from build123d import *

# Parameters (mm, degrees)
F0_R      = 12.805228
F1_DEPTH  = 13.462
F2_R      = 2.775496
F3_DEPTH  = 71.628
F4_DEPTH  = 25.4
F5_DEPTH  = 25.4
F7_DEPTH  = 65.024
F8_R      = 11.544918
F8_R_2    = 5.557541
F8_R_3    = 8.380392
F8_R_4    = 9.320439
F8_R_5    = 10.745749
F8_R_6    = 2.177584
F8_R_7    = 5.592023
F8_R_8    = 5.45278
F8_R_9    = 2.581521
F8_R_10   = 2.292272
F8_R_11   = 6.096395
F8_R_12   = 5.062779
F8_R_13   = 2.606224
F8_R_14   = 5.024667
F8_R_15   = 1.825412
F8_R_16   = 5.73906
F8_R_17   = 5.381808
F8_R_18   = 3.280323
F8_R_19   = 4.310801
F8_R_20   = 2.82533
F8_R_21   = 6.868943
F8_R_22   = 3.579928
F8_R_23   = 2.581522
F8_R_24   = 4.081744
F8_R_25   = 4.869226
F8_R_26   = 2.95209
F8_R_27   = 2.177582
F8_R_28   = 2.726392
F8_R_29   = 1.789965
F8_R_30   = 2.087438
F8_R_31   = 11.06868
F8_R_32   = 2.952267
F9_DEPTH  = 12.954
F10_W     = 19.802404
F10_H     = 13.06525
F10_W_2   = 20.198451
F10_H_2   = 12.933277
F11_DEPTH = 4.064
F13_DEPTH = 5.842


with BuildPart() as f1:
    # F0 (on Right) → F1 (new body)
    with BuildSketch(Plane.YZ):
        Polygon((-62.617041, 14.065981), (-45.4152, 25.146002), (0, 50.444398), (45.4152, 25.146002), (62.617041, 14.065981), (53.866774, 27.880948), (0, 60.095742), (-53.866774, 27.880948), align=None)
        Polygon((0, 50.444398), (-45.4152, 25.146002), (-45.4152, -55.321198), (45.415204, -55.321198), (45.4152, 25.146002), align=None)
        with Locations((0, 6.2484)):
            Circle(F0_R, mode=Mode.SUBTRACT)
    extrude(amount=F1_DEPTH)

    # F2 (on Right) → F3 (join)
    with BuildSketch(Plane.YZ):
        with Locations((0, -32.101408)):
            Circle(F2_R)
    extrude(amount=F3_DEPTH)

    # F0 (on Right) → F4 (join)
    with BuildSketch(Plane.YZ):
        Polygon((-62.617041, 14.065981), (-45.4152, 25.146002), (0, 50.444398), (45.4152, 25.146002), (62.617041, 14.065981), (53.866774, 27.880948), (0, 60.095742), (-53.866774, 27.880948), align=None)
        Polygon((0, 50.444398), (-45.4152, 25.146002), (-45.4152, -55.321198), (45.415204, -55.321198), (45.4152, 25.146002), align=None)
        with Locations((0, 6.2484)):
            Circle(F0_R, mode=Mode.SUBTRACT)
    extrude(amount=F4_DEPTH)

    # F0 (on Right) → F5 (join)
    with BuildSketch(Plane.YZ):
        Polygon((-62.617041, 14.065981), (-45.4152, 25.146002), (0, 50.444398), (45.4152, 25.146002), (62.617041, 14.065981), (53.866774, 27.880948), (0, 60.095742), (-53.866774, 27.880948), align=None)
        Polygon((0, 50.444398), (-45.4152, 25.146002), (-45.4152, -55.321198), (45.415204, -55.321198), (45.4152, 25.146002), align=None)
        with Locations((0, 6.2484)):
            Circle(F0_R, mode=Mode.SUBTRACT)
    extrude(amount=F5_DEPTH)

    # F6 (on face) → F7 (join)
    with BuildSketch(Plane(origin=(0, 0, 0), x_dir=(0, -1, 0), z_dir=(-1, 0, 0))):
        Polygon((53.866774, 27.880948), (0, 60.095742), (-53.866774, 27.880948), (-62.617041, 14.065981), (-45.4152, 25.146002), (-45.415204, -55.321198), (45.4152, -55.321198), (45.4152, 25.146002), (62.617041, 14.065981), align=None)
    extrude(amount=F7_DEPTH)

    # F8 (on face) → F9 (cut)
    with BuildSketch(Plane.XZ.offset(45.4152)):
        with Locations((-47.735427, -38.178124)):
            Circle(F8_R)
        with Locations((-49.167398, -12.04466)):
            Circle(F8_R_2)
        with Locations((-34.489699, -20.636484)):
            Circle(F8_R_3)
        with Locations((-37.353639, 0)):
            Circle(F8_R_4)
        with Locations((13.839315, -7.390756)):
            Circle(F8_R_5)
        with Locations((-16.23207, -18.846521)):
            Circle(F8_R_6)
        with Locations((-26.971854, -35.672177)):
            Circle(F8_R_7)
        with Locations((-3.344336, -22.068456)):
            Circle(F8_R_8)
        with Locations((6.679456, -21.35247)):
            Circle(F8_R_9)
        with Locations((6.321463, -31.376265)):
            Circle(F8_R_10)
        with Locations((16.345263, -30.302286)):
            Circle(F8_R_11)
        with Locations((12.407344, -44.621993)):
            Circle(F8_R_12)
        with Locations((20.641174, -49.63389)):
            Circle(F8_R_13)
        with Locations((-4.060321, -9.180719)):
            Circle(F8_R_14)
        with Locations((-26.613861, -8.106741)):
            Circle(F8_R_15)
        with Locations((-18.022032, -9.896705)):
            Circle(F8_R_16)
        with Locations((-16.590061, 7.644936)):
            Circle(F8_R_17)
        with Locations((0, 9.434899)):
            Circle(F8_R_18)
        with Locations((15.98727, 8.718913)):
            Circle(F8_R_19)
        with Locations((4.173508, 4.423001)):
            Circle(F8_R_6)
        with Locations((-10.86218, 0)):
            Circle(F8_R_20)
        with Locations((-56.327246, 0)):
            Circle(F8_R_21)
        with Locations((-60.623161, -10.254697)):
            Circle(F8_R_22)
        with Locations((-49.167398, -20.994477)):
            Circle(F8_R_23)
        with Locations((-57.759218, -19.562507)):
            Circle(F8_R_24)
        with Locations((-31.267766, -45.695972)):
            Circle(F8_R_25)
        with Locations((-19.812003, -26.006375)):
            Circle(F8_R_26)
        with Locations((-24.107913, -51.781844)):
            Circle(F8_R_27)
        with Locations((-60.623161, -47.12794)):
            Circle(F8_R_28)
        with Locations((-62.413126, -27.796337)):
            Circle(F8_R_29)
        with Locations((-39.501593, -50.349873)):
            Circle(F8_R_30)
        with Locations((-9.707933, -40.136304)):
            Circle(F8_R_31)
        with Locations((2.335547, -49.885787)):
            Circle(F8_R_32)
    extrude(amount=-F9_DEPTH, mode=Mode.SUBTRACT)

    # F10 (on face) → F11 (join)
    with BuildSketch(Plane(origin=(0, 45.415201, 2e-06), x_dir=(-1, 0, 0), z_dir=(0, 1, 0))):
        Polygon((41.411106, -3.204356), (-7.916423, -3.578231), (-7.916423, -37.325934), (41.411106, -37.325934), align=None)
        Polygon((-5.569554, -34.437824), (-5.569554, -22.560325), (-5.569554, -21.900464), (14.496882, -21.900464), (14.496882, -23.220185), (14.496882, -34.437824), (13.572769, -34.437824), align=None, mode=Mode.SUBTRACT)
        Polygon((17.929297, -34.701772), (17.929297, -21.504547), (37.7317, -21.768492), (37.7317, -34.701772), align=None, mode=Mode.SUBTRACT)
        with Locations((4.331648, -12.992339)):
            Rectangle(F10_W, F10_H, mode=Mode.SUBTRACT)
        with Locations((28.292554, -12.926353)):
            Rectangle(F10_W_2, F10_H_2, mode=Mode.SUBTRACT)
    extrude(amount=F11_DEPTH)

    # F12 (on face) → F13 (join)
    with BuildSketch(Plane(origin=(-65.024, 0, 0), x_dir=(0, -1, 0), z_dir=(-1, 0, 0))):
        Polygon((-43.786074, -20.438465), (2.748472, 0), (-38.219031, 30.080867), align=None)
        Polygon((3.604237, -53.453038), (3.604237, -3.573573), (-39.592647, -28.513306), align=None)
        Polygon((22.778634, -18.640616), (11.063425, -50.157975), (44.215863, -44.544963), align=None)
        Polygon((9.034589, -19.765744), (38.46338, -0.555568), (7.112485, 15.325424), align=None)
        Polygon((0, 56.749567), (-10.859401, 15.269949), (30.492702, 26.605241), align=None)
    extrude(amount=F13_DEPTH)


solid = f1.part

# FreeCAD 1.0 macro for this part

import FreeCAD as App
import Part
import Sketcher
from FreeCAD import Vector
Q = App.Units.Quantity


def add_polygon(sketch, points):
    """Adds a closed chain of lines whose ends are joined by coincident constraints."""
    first, n = sketch.GeometryCount, len(points)
    for a, b in zip(points, points[1:] + points[:1]):
        sketch.addGeometry(Part.LineSegment(App.Vector(*a, 0), App.Vector(*b, 0)), False)
    for i in range(n):
        sketch.addConstraint(Sketcher.Constraint("Coincident", first + i, 2, first + (i + 1) % n, 1))

doc = App.newDocument("Part")
body = doc.addObject("PartDesign::Body", "Body")

# Sketch on YZ plane
sketch1 = doc.addObject("Sketcher::SketchObject", "Sketch")
body.addObject(sketch1)
sketch1.AttachmentSupport = (doc.YZ_Plane, [""])
sketch1.MapMode = "FlatFace"
add_polygon(sketch1, [(-63, 14), (-45, 25), (-45, -55), (45, -55), (45, 25), (63, 14), (54, 28), (0, 60), (-54, 28)])  # lines 0-8
sketch1.addGeometry(Part.Circle(Vector(0, 6, 0), Vector(0, 0, 1), 13), False)  # 9
sketch1.addConstraint(Sketcher.Constraint("Vertical", 1))
sketch1.addConstraint(Sketcher.Constraint("Horizontal", 2))
sketch1.addConstraint(Sketcher.Constraint("Symmetric", 0, 2, 3, 2, -2))
sketch1.addConstraint(Sketcher.Constraint("Symmetric", 5, 2, 7, 2, -2))
sketch1.addConstraint(Sketcher.Constraint("Symmetric", 4, 2, 8, 2, -2))
sketch1.addConstraint(Sketcher.Constraint("PointOnObject", 9, 3, -2))
sketch1.addConstraint(Sketcher.Constraint("PointOnObject", 6, 2, -2))
sketch1.addConstraint(Sketcher.Constraint("Angle", 3, Q("90.000003 deg")))
sketch1.addConstraint(Sketcher.Constraint("DistanceX", 2, 1, 2, 2, Q("3.5760002 in")))
sketch1.addConstraint(Sketcher.Constraint("DistanceY", 1, 2, 1, 1, Q("3.168 in")))
sketch1.addConstraint(Sketcher.Constraint("DistanceY", -1, 1, 0, 2, Q("0.9900001 in")))
sketch1.addConstraint(Sketcher.Constraint("DistanceY", -1, 1, 9, 3, Q("0.246 in")))
sketch1.addConstraint(Sketcher.Constraint("Diameter", 9, Q("25.610456 mm")))
sketch1.addConstraint(Sketcher.Constraint("Distance", 0, Q("20.461432 mm")))
sketch1.addConstraint(Sketcher.Constraint("DistanceX", -1, 1, 4, 2, Q("62.617041 mm")))
sketch1.addConstraint(Sketcher.Constraint("DistanceY", -1, 1, 5, 2, Q("27.880948 mm")))
sketch1.addConstraint(Sketcher.Constraint("DistanceX", 2, 2, 5, 2, Q("8.45157 mm")))
sketch1.addConstraint(Sketcher.Constraint("DistanceY", 9, 3, 6, 2, Q("53.847342 mm")))
pad1 = doc.addObject("PartDesign::Pad", "Pad")
body.addObject(pad1)
pad1.Profile = sketch1
pad1.Length = Q("0.53 in")

# Sketch on YZ plane
sketch2 = doc.addObject("Sketcher::SketchObject", "Sketch001")
body.addObject(sketch2)
sketch2.AttachmentSupport = (doc.YZ_Plane, [""])
sketch2.MapMode = "FlatFace"
sketch2.addGeometry(Part.Circle(Vector(0, -32.1, 0), Vector(0, 0, 1), 2.8), False)
sketch2.addConstraint(Sketcher.Constraint("PointOnObject", 0, 3, -2))
sketch2.addConstraint(Sketcher.Constraint("Diameter", 0, Q("5.550992 mm")))
sketch2.addConstraint(Sketcher.Constraint("DistanceY", 0, 3, -1, 1, Q("32.101408 mm")))
pad2 = doc.addObject("PartDesign::Pad", "Pad001")
body.addObject(pad2)
pad2.Profile = sketch2
pad2.Length = Q("2.82 in")

# Sketch on YZ plane
sketch3 = doc.addObject("Sketcher::SketchObject", "Sketch002")
body.addObject(sketch3)
sketch3.AttachmentSupport = (doc.YZ_Plane, [""])
sketch3.MapMode = "FlatFace"
add_polygon(sketch3, [(-63, 14), (-45, 25), (-45, -55), (45, -55), (45, 25), (63, 14), (54, 28), (0, 60), (-54, 28)])  # lines 0-8
sketch3.addGeometry(Part.Circle(Vector(0, 6, 0), Vector(0, 0, 1), 13), False)  # 9
sketch3.addConstraint(Sketcher.Constraint("Vertical", 1))
sketch3.addConstraint(Sketcher.Constraint("Horizontal", 2))
sketch3.addConstraint(Sketcher.Constraint("Symmetric", 0, 2, 3, 2, -2))
sketch3.addConstraint(Sketcher.Constraint("Symmetric", 5, 2, 7, 2, -2))
sketch3.addConstraint(Sketcher.Constraint("Symmetric", 4, 2, 8, 2, -2))
sketch3.addConstraint(Sketcher.Constraint("PointOnObject", 9, 3, -2))
sketch3.addConstraint(Sketcher.Constraint("PointOnObject", 6, 2, -2))
sketch3.addConstraint(Sketcher.Constraint("Angle", 3, Q("90.000003 deg")))
sketch3.addConstraint(Sketcher.Constraint("DistanceX", 2, 1, 2, 2, Q("3.5760002 in")))
sketch3.addConstraint(Sketcher.Constraint("DistanceY", 1, 2, 1, 1, Q("3.168 in")))
sketch3.addConstraint(Sketcher.Constraint("DistanceY", -1, 1, 0, 2, Q("0.9900001 in")))
sketch3.addConstraint(Sketcher.Constraint("DistanceY", -1, 1, 9, 3, Q("0.246 in")))
sketch3.addConstraint(Sketcher.Constraint("Diameter", 9, Q("25.610456 mm")))
sketch3.addConstraint(Sketcher.Constraint("Distance", 0, Q("20.461432 mm")))
sketch3.addConstraint(Sketcher.Constraint("DistanceX", -1, 1, 4, 2, Q("62.617041 mm")))
sketch3.addConstraint(Sketcher.Constraint("DistanceY", -1, 1, 5, 2, Q("27.880948 mm")))
sketch3.addConstraint(Sketcher.Constraint("DistanceX", 2, 2, 5, 2, Q("8.45157 mm")))
sketch3.addConstraint(Sketcher.Constraint("DistanceY", 9, 3, 6, 2, Q("53.847342 mm")))
pad3 = doc.addObject("PartDesign::Pad", "Pad002")
body.addObject(pad3)
pad3.Profile = sketch3
pad3.Length = Q("1 in")

# Sketch on YZ plane
sketch4 = doc.addObject("Sketcher::SketchObject", "Sketch003")
body.addObject(sketch4)
sketch4.AttachmentSupport = (doc.YZ_Plane, [""])
sketch4.MapMode = "FlatFace"
add_polygon(sketch4, [(-63, 14), (-45, 25), (-45, -55), (45, -55), (45, 25), (63, 14), (54, 28), (0, 60), (-54, 28)])  # lines 0-8
sketch4.addGeometry(Part.Circle(Vector(0, 6, 0), Vector(0, 0, 1), 13), False)  # 9
sketch4.addConstraint(Sketcher.Constraint("Vertical", 1))
sketch4.addConstraint(Sketcher.Constraint("Horizontal", 2))
sketch4.addConstraint(Sketcher.Constraint("Symmetric", 0, 2, 3, 2, -2))
sketch4.addConstraint(Sketcher.Constraint("Symmetric", 5, 2, 7, 2, -2))
sketch4.addConstraint(Sketcher.Constraint("Symmetric", 4, 2, 8, 2, -2))
sketch4.addConstraint(Sketcher.Constraint("PointOnObject", 9, 3, -2))
sketch4.addConstraint(Sketcher.Constraint("PointOnObject", 6, 2, -2))
sketch4.addConstraint(Sketcher.Constraint("Angle", 3, Q("90.000003 deg")))
sketch4.addConstraint(Sketcher.Constraint("DistanceX", 2, 1, 2, 2, Q("3.5760002 in")))
sketch4.addConstraint(Sketcher.Constraint("DistanceY", 1, 2, 1, 1, Q("3.168 in")))
sketch4.addConstraint(Sketcher.Constraint("DistanceY", -1, 1, 0, 2, Q("0.9900001 in")))
sketch4.addConstraint(Sketcher.Constraint("DistanceY", -1, 1, 9, 3, Q("0.246 in")))
sketch4.addConstraint(Sketcher.Constraint("Diameter", 9, Q("25.610456 mm")))
sketch4.addConstraint(Sketcher.Constraint("Distance", 0, Q("20.461432 mm")))
sketch4.addConstraint(Sketcher.Constraint("DistanceX", -1, 1, 4, 2, Q("62.617041 mm")))
sketch4.addConstraint(Sketcher.Constraint("DistanceY", -1, 1, 5, 2, Q("27.880948 mm")))
sketch4.addConstraint(Sketcher.Constraint("DistanceX", 2, 2, 5, 2, Q("8.45157 mm")))
sketch4.addConstraint(Sketcher.Constraint("DistanceY", 9, 3, 6, 2, Q("53.847342 mm")))
pad4 = doc.addObject("PartDesign::Pad", "Pad003")
body.addObject(pad4)
pad4.Profile = sketch4
pad4.Length = Q("1 in")

# Sketch on YZ plane
sketch5 = doc.addObject("Sketcher::SketchObject", "Sketch004")
body.addObject(sketch5)
sketch5.AttachmentSupport = (doc.YZ_Plane, [""])
sketch5.MapMode = "FlatFace"
add_polygon(sketch5, [(-54, 28), (0, 60), (54, 28), (63, 14), (45, 25), (45, -55), (-45, -55), (-45, 25), (-63, 14)])  # lines 0-8
sketch5.addConstraint(Sketcher.Constraint("Horizontal", 5))
sketch5.addConstraint(Sketcher.Constraint("Vertical", 6))
sketch5.addConstraint(Sketcher.Constraint("Symmetric", 3, 2, 6, 2, -2))
sketch5.addConstraint(Sketcher.Constraint("Symmetric", 2, 2, 7, 2, -2))
sketch5.addConstraint(Sketcher.Constraint("Symmetric", 1, 2, 8, 2, -2))
sketch5.addConstraint(Sketcher.Constraint("PointOnObject", 0, 2, -2))
sketch5.addConstraint(Sketcher.Constraint("Angle", 4, Q("-89.999997 deg")))
sketch5.addConstraint(Sketcher.Constraint("DistanceX", 5, 2, 5, 1, Q("3.5760002 in")))
sketch5.addConstraint(Sketcher.Constraint("DistanceY", 6, 1, 6, 2, Q("3.168 in")))
sketch5.addConstraint(Sketcher.Constraint("DistanceY", -1, 1, 3, 2, Q("0.9900001 in")))
sketch5.addConstraint(Sketcher.Constraint("Distance", 3, Q("20.461432 mm")))
sketch5.addConstraint(Sketcher.Constraint("DistanceY", -1, 1, 1, 2, Q("27.880948 mm")))
sketch5.addConstraint(Sketcher.Constraint("DistanceX", -1, 1, 2, 2, Q("62.617041 mm")))
sketch5.addConstraint(Sketcher.Constraint("DistanceY", 2, 2, 0, 2, Q("46.029761 mm")))
sketch5.addConstraint(Sketcher.Constraint("DistanceX", 4, 2, 1, 2, Q("8.45157 mm")))
pad5 = doc.addObject("PartDesign::Pad", "Pad004")
body.addObject(pad5)
pad5.Profile = sketch5
pad5.Length = Q("2.56 in")
pad5.Reversed = True

# Sketch on XZ plane
sketch6 = doc.addObject("Sketcher::SketchObject", "Sketch005")
body.addObject(sketch6)
sketch6.AttachmentSupport = (doc.XZ_Plane, [""])
sketch6.MapMode = "FlatFace"
sketch6.AttachmentOffset = App.Placement(Vector(0, 0, 1.788 * 25.4), App.Rotation())
sketch6.addGeometry(Part.Circle(Vector(-47.7, -38.2, 0), Vector(0, 0, 1), 11.5), False)
sketch6.addGeometry(Part.Circle(Vector(-49.2, -12, 0), Vector(0, 0, 1), 5.6), False)
sketch6.addGeometry(Part.Circle(Vector(-34.5, -20.6, 0), Vector(0, 0, 1), 8.4), False)
sketch6.addGeometry(Part.Circle(Vector(-37.4, 0, 0), Vector(0, 0, 1), 9.3), False)
sketch6.addGeometry(Part.Circle(Vector(13.8, -7.4, 0), Vector(0, 0, 1), 10.7), False)
sketch6.addGeometry(Part.Circle(Vector(-16.2, -18.8, 0), Vector(0, 0, 1), 2.2), False)
sketch6.addGeometry(Part.Circle(Vector(-27, -35.7, 0), Vector(0, 0, 1), 5.6), False)
sketch6.addGeometry(Part.Circle(Vector(-3.3, -22.1, 0), Vector(0, 0, 1), 5.5), False)
sketch6.addGeometry(Part.Circle(Vector(6.7, -21.4, 0), Vector(0, 0, 1), 2.6), False)
sketch6.addGeometry(Part.Circle(Vector(6.3, -31.4, 0), Vector(0, 0, 1), 2.3), False)
sketch6.addGeometry(Part.Circle(Vector(16.3, -30.3, 0), Vector(0, 0, 1), 6.1), False)
sketch6.addGeometry(Part.Circle(Vector(12.4, -44.6, 0), Vector(0, 0, 1), 5.1), False)
sketch6.addGeometry(Part.Circle(Vector(20.6, -49.6, 0), Vector(0, 0, 1), 2.6), False)
sketch6.addGeometry(Part.Circle(Vector(-4.1, -9.2, 0), Vector(0, 0, 1), 5), False)
sketch6.addGeometry(Part.Circle(Vector(-26.6, -8.1, 0), Vector(0, 0, 1), 1.8), False)
sketch6.addGeometry(Part.Circle(Vector(-18, -9.9, 0), Vector(0, 0, 1), 5.7), False)
sketch6.addGeometry(Part.Circle(Vector(-16.6, 7.6, 0), Vector(0, 0, 1), 5.4), False)
sketch6.addGeometry(Part.Circle(Vector(0, 9.4, 0), Vector(0, 0, 1), 3.3), False)
sketch6.addGeometry(Part.Circle(Vector(16, 8.7, 0), Vector(0, 0, 1), 4.3), False)
sketch6.addGeometry(Part.Circle(Vector(4.2, 4.4, 0), Vector(0, 0, 1), 2.2), False)
sketch6.addGeometry(Part.Circle(Vector(-10.9, 0, 0), Vector(0, 0, 1), 2.8), False)
sketch6.addGeometry(Part.Circle(Vector(-56.3, 0, 0), Vector(0, 0, 1), 6.9), False)
sketch6.addGeometry(Part.Circle(Vector(-60.6, -10.3, 0), Vector(0, 0, 1), 3.6), False)
sketch6.addGeometry(Part.Circle(Vector(-49.2, -21, 0), Vector(0, 0, 1), 2.6), False)
sketch6.addGeometry(Part.Circle(Vector(-57.8, -19.6, 0), Vector(0, 0, 1), 4.1), False)
sketch6.addGeometry(Part.Circle(Vector(-31.3, -45.7, 0), Vector(0, 0, 1), 4.9), False)
sketch6.addGeometry(Part.Circle(Vector(-19.8, -26, 0), Vector(0, 0, 1), 3), False)
sketch6.addGeometry(Part.Circle(Vector(-24.1, -51.8, 0), Vector(0, 0, 1), 2.2), False)
sketch6.addGeometry(Part.Circle(Vector(-60.6, -47.1, 0), Vector(0, 0, 1), 2.7), False)
sketch6.addGeometry(Part.Circle(Vector(-62.4, -27.8, 0), Vector(0, 0, 1), 1.8), False)
sketch6.addGeometry(Part.Circle(Vector(-39.5, -50.3, 0), Vector(0, 0, 1), 2.1), False)
sketch6.addGeometry(Part.Circle(Vector(-9.7, -40.1, 0), Vector(0, 0, 1), 11.1), False)
sketch6.addGeometry(Part.Circle(Vector(2.3, -49.9, 0), Vector(0, 0, 1), 3), False)
sketch6.addConstraint(Sketcher.Constraint("Equal", 5, 19))
sketch6.addConstraint(Sketcher.Constraint("Equal", 8, 23))
sketch6.addConstraint(Sketcher.Constraint("Equal", 19, 27))
sketch6.addConstraint(Sketcher.Constraint("PointOnObject", 3, 3, -1))
sketch6.addConstraint(Sketcher.Constraint("PointOnObject", 17, 3, -2))
sketch6.addConstraint(Sketcher.Constraint("PointOnObject", 20, 3, -1))
sketch6.addConstraint(Sketcher.Constraint("PointOnObject", 21, 3, -1))
sketch6.addConstraint(Sketcher.Constraint("Vertical", 1, 3, 23, 3))
sketch6.addConstraint(Sketcher.Constraint("Vertical", 22, 3, 28, 3))
sketch6.addConstraint(Sketcher.Constraint("Diameter", 4, Q("21.491498 mm")))
sketch6.addConstraint(Sketcher.Constraint("Diameter", 18, Q("8.621602 mm")))
sketch6.addConstraint(Sketcher.Constraint("DistanceX", 26, 3, -1, 1, Q("0.7800001 in")))
sketch6.addConstraint(Sketcher.Constraint("Diameter", 1, Q("11.115082 mm")))
sketch6.addConstraint(Sketcher.Constraint("Diameter", 3, Q("18.640878 mm")))
sketch6.addConstraint(Sketcher.Constraint("Diameter", 7, Q("10.90556 mm")))
sketch6.addConstraint(Sketcher.Constraint("Diameter", 10, Q("12.19279 mm")))
sketch6.addConstraint(Sketcher.Constraint("Diameter", 12, Q("5.212448 mm")))
sketch6.addConstraint(Sketcher.Constraint("Diameter", 15, Q("11.47812 mm")))
sketch6.addConstraint(Sketcher.Constraint("Diameter", 20, Q("5.65066 mm")))
sketch6.addConstraint(Sketcher.Constraint("Diameter", 26, Q("5.90418 mm")))
sketch6.addConstraint(Sketcher.Constraint("Diameter", 29, Q("3.57993 mm")))
sketch6.addConstraint(Sketcher.Constraint("Diameter", 31, Q("22.13736 mm")))
sketch6.addConstraint(Sketcher.Constraint("Diameter", 0, Q("23.089836 mm")))
sketch6.addConstraint(Sketcher.Constraint("Diameter", 2, Q("16.760784 mm")))
sketch6.addConstraint(Sketcher.Constraint("Diameter", 5, Q("4.355168 mm")))
sketch6.addConstraint(Sketcher.Constraint("Diameter", 6, Q("11.184046 mm")))
sketch6.addConstraint(Sketcher.Constraint("Diameter", 8, Q("5.163042 mm")))
sketch6.addConstraint(Sketcher.Constraint("Diameter", 9, Q("4.584544 mm")))
sketch6.addConstraint(Sketcher.Constraint("Diameter", 11, Q("10.125558 mm")))
sketch6.addConstraint(Sketcher.Constraint("Diameter", 13, Q("10.049334 mm")))
sketch6.addConstraint(Sketcher.Constraint("Diameter", 14, Q("3.650824 mm")))
sketch6.addConstraint(Sketcher.Constraint("Diameter", 16, Q("10.763616 mm")))
sketch6.addConstraint(Sketcher.Constraint("Diameter", 17, Q("6.560646 mm")))
sketch6.addConstraint(Sketcher.Constraint("Diameter", 21, Q("13.737886 mm")))
sketch6.addConstraint(Sketcher.Constraint("Diameter", 22, Q("7.159856 mm")))
sketch6.addConstraint(Sketcher.Constraint("Diameter", 24, Q("8.163488 mm")))
sketch6.addConstraint(Sketcher.Constraint("Diameter", 25, Q("9.738452 mm")))
sketch6.addConstraint(Sketcher.Constraint("Diameter", 28, Q("5.452784 mm")))
sketch6.addConstraint(Sketcher.Constraint("Diameter", 30, Q("4.174876 mm")))
sketch6.addConstraint(Sketcher.Constraint("Diameter", 32, Q("5.904534 mm")))
sketch6.addConstraint(Sketcher.Constraint("DistanceY", 25, 3, 23, 3, Q("0.9724998 in")))
sketch6.addConstraint(Sketcher.Constraint("DistanceX", 2, 3, -1, 1, Q("34.489699 mm")))
sketch6.addConstraint(Sketcher.Constraint("DistanceY", -1, 1, 17, 3, Q("9.434899 mm")))
sketch6.addConstraint(Sketcher.Constraint("DistanceY", -1, 1, 19, 3, Q("4.423001 mm")))
sketch6.addConstraint(Sketcher.Constraint("DistanceX", 1, 3, 2, 3, Q("14.677699 mm")))
sketch6.addConstraint(Sketcher.Constraint("DistanceY", 7, 3, 4, 3, Q("14.6777 mm")))
sketch6.addConstraint(Sketcher.Constraint("DistanceX", 7, 3, 9, 3, Q("9.665799 mm")))
sketch6.addConstraint(Sketcher.Constraint("DistanceX", 9, 3, 10, 3, Q("10.0238 mm")))
sketch6.addConstraint(Sketcher.Constraint("DistanceY", 5, 3, 13, 3, Q("9.665802 mm")))
sketch6.addConstraint(Sketcher.Constraint("DistanceX", 14, 3, 16, 3, Q("10.0238 mm")))
sketch6.addConstraint(Sketcher.Constraint("DistanceY", 6, 3, 26, 3, Q("9.665802 mm")))
sketch6.addConstraint(Sketcher.Constraint("DistanceX", 29, 3, 0, 3, Q("14.677699 mm")))
sketch6.addConstraint(Sketcher.Constraint("DistanceY", 30, 3, 25, 3, Q("4.653901 mm")))
sketch6.addConstraint(Sketcher.Constraint("DistanceY", 32, 3, 10, 3, Q("19.583501 mm")))
sketch6.addConstraint(Sketcher.Constraint("DistanceY", 1, 3, -1, 1, Q("12.04466 mm")))
sketch6.addConstraint(Sketcher.Constraint("DistanceX", 3, 3, -1, 1, Q("37.353639 mm")))
sketch6.addConstraint(Sketcher.Constraint("DistanceX", 5, 3, -1, 1, Q("16.23207 mm")))
sketch6.addConstraint(Sketcher.Constraint("DistanceY", 5, 3, -1, 1, Q("18.846521 mm")))
sketch6.addConstraint(Sketcher.Constraint("DistanceY", 8, 3, -1, 1, Q("21.35247 mm")))
sketch6.addConstraint(Sketcher.Constraint("DistanceY", 12, 3, -1, 1, Q("49.63389 mm")))
sketch6.addConstraint(Sketcher.Constraint("DistanceX", 13, 3, -1, 1, Q("4.060321 mm")))
sketch6.addConstraint(Sketcher.Constraint("DistanceX", 14, 3, -1, 1, Q("26.613861 mm")))
sketch6.addConstraint(Sketcher.Constraint("DistanceY", 14, 3, -1, 1, Q("8.106741 mm")))
sketch6.addConstraint(Sketcher.Constraint("DistanceX", 15, 3, -1, 1, Q("18.022032 mm")))
sketch6.addConstraint(Sketcher.Constraint("DistanceX", -1, 1, 18, 3, Q("15.98727 mm")))
sketch6.addConstraint(Sketcher.Constraint("DistanceX", 20, 3, -1, 1, Q("10.86218 mm")))
sketch6.addConstraint(Sketcher.Constraint("DistanceX", 22, 3, -1, 1, Q("60.623161 mm")))
sketch6.addConstraint(Sketcher.Constraint("DistanceY", 25, 3, -1, 1, Q("45.695972 mm")))
sketch6.addConstraint(Sketcher.Constraint("DistanceY", 28, 3, -1, 1, Q("47.12794 mm")))
sketch6.addConstraint(Sketcher.Constraint("DistanceX", 1, 3, 0, 3, Q("1.431971 mm")))
sketch6.addConstraint(Sketcher.Constraint("DistanceY", 0, 3, 2, 3, Q("17.54164 mm")))
sketch6.addConstraint(Sketcher.Constraint("DistanceX", 7, 3, 4, 3, Q("17.183651 mm")))
sketch6.addConstraint(Sketcher.Constraint("DistanceX", 6, 3, 7, 3, Q("23.627518 mm")))
sketch6.addConstraint(Sketcher.Constraint("DistanceY", 6, 3, 7, 3, Q("13.603721 mm")))
sketch6.addConstraint(Sketcher.Constraint("DistanceX", 8, 3, 4, 3, Q("7.159859 mm")))
sketch6.addConstraint(Sketcher.Constraint("DistanceY", 9, 3, 7, 3, Q("9.307809 mm")))
sketch6.addConstraint(Sketcher.Constraint("DistanceY", 9, 3, 10, 3, Q("1.073979 mm")))
sketch6.addConstraint(Sketcher.Constraint("DistanceX", 9, 3, 11, 3, Q("6.085881 mm")))
sketch6.addConstraint(Sketcher.Constraint("DistanceY", 11, 3, 9, 3, Q("13.245728 mm")))
sketch6.addConstraint(Sketcher.Constraint("DistanceX", 11, 3, 12, 3, Q("8.23383 mm")))
sketch6.addConstraint(Sketcher.Constraint("DistanceY", 7, 3, 15, 3, Q("12.171751 mm")))
sketch6.addConstraint(Sketcher.Constraint("DistanceY", 2, 3, 15, 3, Q("10.739779 mm")))
sketch6.addConstraint(Sketcher.Constraint("DistanceY", 15, 3, 16, 3, Q("17.541641 mm")))
sketch6.addConstraint(Sketcher.Constraint("DistanceY", 4, 3, 18, 3, Q("16.109669 mm")))
sketch6.addConstraint(Sketcher.Constraint("DistanceX", 13, 3, 19, 3, Q("8.233829 mm")))
sketch6.addConstraint(Sketcher.Constraint("DistanceX", 21, 3, 1, 3, Q("7.159848 mm")))
sketch6.addConstraint(Sketcher.Constraint("DistanceY", 23, 3, 22, 3, Q("10.73978 mm")))
sketch6.addConstraint(Sketcher.Constraint("DistanceX", 24, 3, 23, 3, Q("8.59182 mm")))
sketch6.addConstraint(Sketcher.Constraint("DistanceY", 23, 3, 24, 3, Q("1.43197 mm")))
sketch6.addConstraint(Sketcher.Constraint("DistanceX", 0, 3, 25, 3, Q("16.467661 mm")))
sketch6.addConstraint(Sketcher.Constraint("DistanceY", 25, 3, 0, 3, Q("7.517848 mm")))
sketch6.addConstraint(Sketcher.Constraint("DistanceX", 6, 3, 26, 3, Q("7.159851 mm")))
sketch6.addConstraint(Sketcher.Constraint("DistanceX", 6, 3, 27, 3, Q("2.863941 mm")))
sketch6.addConstraint(Sketcher.Constraint("DistanceY", 27, 3, 26, 3, Q("25.775469 mm")))
sketch6.addConstraint(Sketcher.Constraint("DistanceY", 29, 3, 24, 3, Q("8.23383 mm")))
sketch6.addConstraint(Sketcher.Constraint("DistanceX", 30, 3, 27, 3, Q("15.39368 mm")))
sketch6.addConstraint(Sketcher.Constraint("DistanceX", 26, 3, 31, 3, Q("10.10407 mm")))
sketch6.addConstraint(Sketcher.Constraint("DistanceY", 31, 3, 26, 3, Q("14.129929 mm")))
sketch6.addConstraint(Sketcher.Constraint("DistanceX", 31, 3, 32, 3, Q("12.04348 mm")))
pocket1 = doc.addObject("PartDesign::Pocket", "Pocket")
body.addObject(pocket1)
pocket1.Profile = sketch6
pocket1.Length = Q("0.51 in")

# Sketch on XZ plane
sketch7 = doc.addObject("Sketcher::SketchObject", "Sketch006")
body.addObject(sketch7)
sketch7.AttachmentSupport = (doc.XZ_Plane, [""])
sketch7.MapMode = "FlatFace"
sketch7.AttachmentOffset = App.Placement(Vector(0, 0, -1.788 * 25.4), App.Rotation())
add_polygon(sketch7, [(-41.411106, -3.204354), (7.916423, -3.578229), (7.916423, -37.325932), (-41.411106, -37.325932)])  # lines 0-3
add_polygon(sketch7, [(-14.496882, -34.437822), (5.569554, -34.437822), (5.569554, -21.900462), (-14.496882, -21.900462)])  # lines 4-7
add_polygon(sketch7, [(-37.7317, -34.70177), (-17.929297, -34.70177), (-17.929297, -21.504545), (-37.7317, -21.76849)])  # lines 8-11
add_polygon(sketch7, [(-14.23285, -19.524962), (5.569554, -19.524962), (5.569554, -6.459712), (-14.23285, -6.459712)])  # lines 12-15
add_polygon(sketch7, [(-38.391779, -19.392989), (-18.193328, -19.392989), (-18.193328, -6.459713), (-38.391779, -6.459713)])  # lines 16-19
sketch7.addConstraint(Sketcher.Constraint("Vertical", 1))
sketch7.addConstraint(Sketcher.Constraint("Horizontal", 2))
sketch7.addConstraint(Sketcher.Constraint("Vertical", 3))
sketch7.addConstraint(Sketcher.Constraint("Horizontal", 4))
sketch7.addConstraint(Sketcher.Constraint("Vertical", 5))
sketch7.addConstraint(Sketcher.Constraint("Horizontal", 6))
sketch7.addConstraint(Sketcher.Constraint("Vertical", 7))
sketch7.addConstraint(Sketcher.Constraint("Horizontal", 8))
sketch7.addConstraint(Sketcher.Constraint("Vertical", 9))
sketch7.addConstraint(Sketcher.Constraint("Vertical", 11))
sketch7.addConstraint(Sketcher.Constraint("Horizontal", 12))
sketch7.addConstraint(Sketcher.Constraint("Vertical", 13))
sketch7.addConstraint(Sketcher.Constraint("Horizontal", 14))
sketch7.addConstraint(Sketcher.Constraint("Vertical", 15))
sketch7.addConstraint(Sketcher.Constraint("Horizontal", 16))
sketch7.addConstraint(Sketcher.Constraint("Vertical", 17))
sketch7.addConstraint(Sketcher.Constraint("Horizontal", 18))
sketch7.addConstraint(Sketcher.Constraint("Vertical", 19))
sketch7.addConstraint(Sketcher.Constraint("Horizontal", 14, 2, 17, 2))
sketch7.addConstraint(Sketcher.Constraint("Vertical", 5, 2, 12, 2))
sketch7.addConstraint(Sketcher.Constraint("Equal", 8, 12))
sketch7.addConstraint(Sketcher.Constraint("DistanceX", 10, 2, -1, 1, Q("1.4855 in")))
sketch7.addConstraint(Sketcher.Constraint("DistanceX", 2, 2, 2, 1, Q("49.327529 mm")))
sketch7.addConstraint(Sketcher.Constraint("DistanceX", 16, 1, 16, 2, Q("20.198451 mm")))
sketch7.addConstraint(Sketcher.Constraint("DistanceY", 5, 1, 5, 2, Q("12.53736 mm")))
sketch7.addConstraint(Sketcher.Constraint("DistanceY", 11, 2, 11, 1, Q("12.93328 mm")))
sketch7.addConstraint(Sketcher.Constraint("DistanceY", 13, 1, 13, 2, Q("13.06525 mm")))
sketch7.addConstraint(Sketcher.Constraint("DistanceY", 5, 2, 12, 2, Q("2.3755 mm")))
sketch7.addConstraint(Sketcher.Constraint("DistanceY", 10, 2, 19, 2, Q("2.375501 mm")))
sketch7.addConstraint(Sketcher.Constraint("Distance", 10, Q("19.804162 mm")))
sketch7.addConstraint(Sketcher.Constraint("DistanceX", 4, 1, 4, 2, Q("20.066436 mm")))
sketch7.addConstraint(Sketcher.Constraint("DistanceX", 8, 1, 8, 2, Q("19.802403 mm")))
sketch7.addConstraint(Sketcher.Constraint("DistanceY", 1, 2, 1, 1, Q("33.747703 mm")))
sketch7.addConstraint(Sketcher.Constraint("DistanceY", 3, 1, 3, 2, Q("34.121578 mm")))
sketch7.addConstraint(Sketcher.Constraint("DistanceY", 17, 1, 17, 2, Q("12.933277 mm")))
sketch7.addConstraint(Sketcher.Constraint("DistanceY", 0, 2, -1, 1, Q("3.578229 mm")))
sketch7.addConstraint(Sketcher.Constraint("DistanceY", 4, 2, -1, 1, Q("34.437822 mm")))
sketch7.addConstraint(Sketcher.Constraint("DistanceX", 6, 2, -1, 1, Q("14.496882 mm")))
sketch7.addConstraint(Sketcher.Constraint("DistanceX", 16, 2, -1, 1, Q("18.193328 mm")))
sketch7.addConstraint(Sketcher.Constraint("DistanceX", 4, 2, 1, 2, Q("2.346869 mm")))
pad6 = doc.addObject("PartDesign::Pad", "Pad005")
body.addObject(pad6)
pad6.Profile = sketch7
pad6.Length = Q("0.16 in")
pad6.Reversed = True

# Sketch on YZ plane
sketch8 = doc.addObject("Sketcher::SketchObject", "Sketch007")
body.addObject(sketch8)
sketch8.AttachmentSupport = (doc.YZ_Plane, [""])
sketch8.MapMode = "FlatFace"
sketch8.AttachmentOffset = App.Placement(Vector(0, 0, -2.56 * 25.4), App.Rotation())
add_polygon(sketch8, [(44, -20), (-3, 0), (38, 30)])  # lines 0-2
add_polygon(sketch8, [(-4, -53), (-4, -4), (40, -29)])  # lines 3-5
add_polygon(sketch8, [(-23, -19), (-11, -50), (-44, -45)])  # lines 6-8
add_polygon(sketch8, [(-9, -20), (-38, -1), (-7, 15)])  # lines 9-11
add_polygon(sketch8, [(0, 57), (11, 15), (-30, 27)])  # lines 12-14
sketch8.addConstraint(Sketcher.Constraint("Vertical", 3))
sketch8.addConstraint(Sketcher.Constraint("PointOnObject", 0, 2, -1))
sketch8.addConstraint(Sketcher.Constraint("PointOnObject", 14, 2, -2))
sketch8.addConstraint(Sketcher.Constraint("Equal", 0, 1))
sketch8.addConstraint(Sketcher.Constraint("Equal", 1, 2))
sketch8.addConstraint(Sketcher.Constraint("Equal", 4, 5))
sketch8.addConstraint(Sketcher.Constraint("Equal", 6, 7))
sketch8.addConstraint(Sketcher.Constraint("Equal", 7, 8))
sketch8.addConstraint(Sketcher.Constraint("Equal", 9, 10))
sketch8.addConstraint(Sketcher.Constraint("Equal", 10, 11))
sketch8.addConstraint(Sketcher.Constraint("Equal", 12, 13))
sketch8.addConstraint(Sketcher.Constraint("Equal", 13, 14))
sketch8.addConstraint(Sketcher.Constraint("Angle", 4, Q("-30 deg")))
sketch8.addConstraint(Sketcher.Constraint("DistanceX", 13, 2, -1, 1, Q("1.2005001 in")))
sketch8.addConstraint(Sketcher.Constraint("DistanceX", -1, 1, 12, 2, Q("10.859401 mm")))
sketch8.addConstraint(Sketcher.Constraint("DistanceY", 6, 2, 3, 2, Q("46.584402 mm")))
sketch8.addConstraint(Sketcher.Constraint("DistanceX", 6, 2, 2, 2, Q("54.849499 mm")))
sketch8.addConstraint(Sketcher.Constraint("DistanceY", 1, 2, 14, 2, Q("26.6687 mm")))
sketch8.addConstraint(Sketcher.Constraint("Distance", 0, Q("50.82514 mm")))
sketch8.addConstraint(Sketcher.Constraint("Distance", 9, Q("35.14377 mm")))
sketch8.addConstraint(Sketcher.Constraint("DistanceY", 3, 1, 3, 2, Q("49.879465 mm")))
sketch8.addConstraint(Sketcher.Constraint("DistanceX", 0, 2, -1, 1, Q("2.748472 mm")))
sketch8.addConstraint(Sketcher.Constraint("DistanceX", -1, 1, 1, 2, Q("38.219031 mm")))
sketch8.addConstraint(Sketcher.Constraint("DistanceX", 9, 2, -1, 1, Q("38.46338 mm")))
sketch8.addConstraint(Sketcher.Constraint("DistanceX", 11, 2, -1, 1, Q("9.034589 mm")))
sketch8.addConstraint(Sketcher.Constraint("DistanceX", 3, 2, 2, 2, Q("47.390311 mm")))
sketch8.addConstraint(Sketcher.Constraint("DistanceY", 3, 2, 1, 2, Q("33.65444 mm")))
sketch8.addConstraint(Sketcher.Constraint("DistanceY", 6, 2, 7, 2, Q("5.613012 mm")))
sketch8.addConstraint(Sketcher.Constraint("DistanceX", 7, 2, 0, 2, Q("41.467391 mm")))
sketch8.addConstraint(Sketcher.Constraint("DistanceY", 8, 2, 9, 2, Q("18.085048 mm")))
pad7 = doc.addObject("PartDesign::Pad", "Pad006")
body.addObject(pad7)
pad7.Profile = sketch8
pad7.Length = Q("0.23 in")
pad7.Reversed = True

doc.recompute()
